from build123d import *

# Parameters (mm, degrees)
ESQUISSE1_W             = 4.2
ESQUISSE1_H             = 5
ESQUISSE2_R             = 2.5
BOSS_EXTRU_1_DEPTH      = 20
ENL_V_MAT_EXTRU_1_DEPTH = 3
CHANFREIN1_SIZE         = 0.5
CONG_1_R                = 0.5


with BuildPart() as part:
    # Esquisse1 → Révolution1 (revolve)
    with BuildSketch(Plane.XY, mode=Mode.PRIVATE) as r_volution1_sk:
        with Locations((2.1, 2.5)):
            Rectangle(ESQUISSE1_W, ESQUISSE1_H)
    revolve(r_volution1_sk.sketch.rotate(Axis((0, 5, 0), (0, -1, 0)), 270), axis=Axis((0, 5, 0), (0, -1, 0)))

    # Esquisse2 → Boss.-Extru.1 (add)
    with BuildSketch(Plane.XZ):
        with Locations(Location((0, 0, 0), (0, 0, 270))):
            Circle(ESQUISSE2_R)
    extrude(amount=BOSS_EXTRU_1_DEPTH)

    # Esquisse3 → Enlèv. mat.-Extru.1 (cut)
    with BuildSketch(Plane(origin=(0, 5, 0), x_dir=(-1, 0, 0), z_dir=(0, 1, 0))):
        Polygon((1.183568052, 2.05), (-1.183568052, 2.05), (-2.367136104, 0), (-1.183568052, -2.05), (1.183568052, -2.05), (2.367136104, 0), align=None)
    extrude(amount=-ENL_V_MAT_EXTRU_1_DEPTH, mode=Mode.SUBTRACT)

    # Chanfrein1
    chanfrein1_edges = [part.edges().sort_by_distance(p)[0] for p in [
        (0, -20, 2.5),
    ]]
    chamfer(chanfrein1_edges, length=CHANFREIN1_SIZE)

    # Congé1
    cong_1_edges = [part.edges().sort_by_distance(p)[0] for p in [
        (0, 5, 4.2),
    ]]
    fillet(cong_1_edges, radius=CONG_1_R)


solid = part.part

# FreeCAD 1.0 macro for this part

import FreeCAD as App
import Part
import Sketcher
from FreeCAD import Vector
Q = App.Units.Quantity


def edges_at(feature, points):
    """Names of the edges that pass closest to the given points."""
    edges = feature.Shape.Edges
    near = lambda p: min(range(len(edges)), key=lambda i: edges[i].distToShape(Part.Vertex(*p))[0])
    return sorted({f"Edge{near(p) + 1}" for p in points})

doc = App.newDocument("Part")
body = doc.addObject("PartDesign::Body", "Body")

sketch1 = body.newObject("Sketcher::SketchObject", "Sketch")
sketch1.AttachmentSupport = (doc.getObject("XY_Plane"), [""])
sketch1.MapMode = "FlatFace"
sketch1.addGeometry([
    Part.LineSegment(Vector(0, 5, 0), Vector(0, 0, 0)),
    Part.LineSegment(Vector(0, 0, 0), Vector(4.2, 0, 0)),
    Part.LineSegment(Vector(4.2, 0, 0), Vector(4.2, 5, 0)),
    Part.LineSegment(Vector(4.2, 5, 0), Vector(0, 5, 0)),
], False)
sketch1.addConstraint([
    Sketcher.Constraint("Coincident", 0, 2, 1, 1),
    Sketcher.Constraint("Coincident", 1, 2, 2, 1),
    Sketcher.Constraint("Coincident", 2, 2, 3, 1),
    Sketcher.Constraint("Coincident", 3, 2, 0, 1),
    Sketcher.Constraint("Vertical", 0),
    Sketcher.Constraint("Horizontal", 1),
    Sketcher.Constraint("Vertical", 2),
    Sketcher.Constraint("Horizontal", 3),
    Sketcher.Constraint("Coincident", 0, 2, -1, 1),
    Sketcher.Constraint("DistanceY", 0, 2, 0, 1, Q("5 mm")),
    Sketcher.Constraint("DistanceX", 1, 1, 1, 2, Q("4.2 mm")),
])
revolution = body.newObject("PartDesign::Revolution", "Revolution")
revolution.Profile = sketch1
revolution.ReferenceAxis = (sketch1, ["V_Axis"])
revolution.Angle = 360

sketch2 = body.newObject("Sketcher::SketchObject", "Sketch001")
sketch2.AttachmentSupport = (doc.getObject("XZ_Plane"), [""])
sketch2.MapMode = "FlatFace"
sketch2.addGeometry(Part.Circle(Vector(0, 0, 0), Vector(0, 0, 1), 2.5), False)
sketch2.addConstraint([
    Sketcher.Constraint("Coincident", 0, 3, -1, 1),
    Sketcher.Constraint("Diameter", 0, Q("5 mm")),
])
pad1 = body.newObject("PartDesign::Pad", "Pad")
pad1.Profile = sketch2
pad1.Length = 20

sketch3 = body.newObject("Sketcher::SketchObject", "Sketch002")
sketch3.AttachmentSupport = (doc.getObject("XZ_Plane"), [""])
sketch3.MapMode = "FlatFace"
sketch3.AttachmentOffset = App.Placement(Vector(0, 0, -5), App.Rotation())
sketch3.addGeometry([
    Part.LineSegment(Vector(-1.183568, 2.05, 0), Vector(1.183568, 2.05, 0)),
    Part.LineSegment(Vector(1.183568, 2.05, 0), Vector(2.367136, 0, 0)),
    Part.LineSegment(Vector(2.367136, 0, 0), Vector(1.183568, -2.05, 0)),
    Part.LineSegment(Vector(1.183568, -2.05, 0), Vector(-1.183568, -2.05, 0)),
    Part.LineSegment(Vector(-1.183568, -2.05, 0), Vector(-2.367136, 0, 0)),
    Part.LineSegment(Vector(-2.367136, 0, 0), Vector(-1.183568, 2.05, 0)),
], False)
sketch3.addConstraint([
    Sketcher.Constraint("Coincident", 0, 2, 1, 1),
    Sketcher.Constraint("Coincident", 1, 2, 2, 1),
    Sketcher.Constraint("Coincident", 2, 2, 3, 1),
    Sketcher.Constraint("Coincident", 3, 2, 4, 1),
    Sketcher.Constraint("Coincident", 4, 2, 5, 1),
    Sketcher.Constraint("Coincident", 5, 2, 0, 1),
    Sketcher.Constraint("Horizontal", 0),
    Sketcher.Constraint("Horizontal", 3),
    Sketcher.Constraint("Symmetric", 0, 2, 3, 2, -1, 1),
    Sketcher.Constraint("Symmetric", 1, 2, 4, 2, -1, 1),
    Sketcher.Constraint("PointOnObject", 1, 2, -1),
    Sketcher.Constraint("Parallel", 2, 5),
    Sketcher.Constraint("Vertical", 0, 2, 2, 2),
    Sketcher.Constraint("Angle", 1, Q("-60 deg")),
    Sketcher.Constraint("DistanceY", 2, 2, 0, 2, Q("4.1 mm")),
    Sketcher.Constraint("DistanceX", 0, 1, 0, 2, Q("2.367136 mm")),
])
pocket1 = body.newObject("PartDesign::Pocket", "Pocket")
pocket1.Profile = sketch3
pocket1.Length = 3
pocket1.Reversed = True
doc.recompute()

chamfer = body.newObject("PartDesign::Chamfer", "Chamfer")
chamfer.Base = (pocket1, edges_at(pocket1, [(0, -20, 2.5)]))
chamfer.Size = 0.5
doc.recompute()

fillet = body.newObject("PartDesign::Fillet", "Fillet")
fillet.Base = (chamfer, edges_at(chamfer, [(0, 5, 4.2)]))
fillet.Radius = 0.5

doc.recompute()
